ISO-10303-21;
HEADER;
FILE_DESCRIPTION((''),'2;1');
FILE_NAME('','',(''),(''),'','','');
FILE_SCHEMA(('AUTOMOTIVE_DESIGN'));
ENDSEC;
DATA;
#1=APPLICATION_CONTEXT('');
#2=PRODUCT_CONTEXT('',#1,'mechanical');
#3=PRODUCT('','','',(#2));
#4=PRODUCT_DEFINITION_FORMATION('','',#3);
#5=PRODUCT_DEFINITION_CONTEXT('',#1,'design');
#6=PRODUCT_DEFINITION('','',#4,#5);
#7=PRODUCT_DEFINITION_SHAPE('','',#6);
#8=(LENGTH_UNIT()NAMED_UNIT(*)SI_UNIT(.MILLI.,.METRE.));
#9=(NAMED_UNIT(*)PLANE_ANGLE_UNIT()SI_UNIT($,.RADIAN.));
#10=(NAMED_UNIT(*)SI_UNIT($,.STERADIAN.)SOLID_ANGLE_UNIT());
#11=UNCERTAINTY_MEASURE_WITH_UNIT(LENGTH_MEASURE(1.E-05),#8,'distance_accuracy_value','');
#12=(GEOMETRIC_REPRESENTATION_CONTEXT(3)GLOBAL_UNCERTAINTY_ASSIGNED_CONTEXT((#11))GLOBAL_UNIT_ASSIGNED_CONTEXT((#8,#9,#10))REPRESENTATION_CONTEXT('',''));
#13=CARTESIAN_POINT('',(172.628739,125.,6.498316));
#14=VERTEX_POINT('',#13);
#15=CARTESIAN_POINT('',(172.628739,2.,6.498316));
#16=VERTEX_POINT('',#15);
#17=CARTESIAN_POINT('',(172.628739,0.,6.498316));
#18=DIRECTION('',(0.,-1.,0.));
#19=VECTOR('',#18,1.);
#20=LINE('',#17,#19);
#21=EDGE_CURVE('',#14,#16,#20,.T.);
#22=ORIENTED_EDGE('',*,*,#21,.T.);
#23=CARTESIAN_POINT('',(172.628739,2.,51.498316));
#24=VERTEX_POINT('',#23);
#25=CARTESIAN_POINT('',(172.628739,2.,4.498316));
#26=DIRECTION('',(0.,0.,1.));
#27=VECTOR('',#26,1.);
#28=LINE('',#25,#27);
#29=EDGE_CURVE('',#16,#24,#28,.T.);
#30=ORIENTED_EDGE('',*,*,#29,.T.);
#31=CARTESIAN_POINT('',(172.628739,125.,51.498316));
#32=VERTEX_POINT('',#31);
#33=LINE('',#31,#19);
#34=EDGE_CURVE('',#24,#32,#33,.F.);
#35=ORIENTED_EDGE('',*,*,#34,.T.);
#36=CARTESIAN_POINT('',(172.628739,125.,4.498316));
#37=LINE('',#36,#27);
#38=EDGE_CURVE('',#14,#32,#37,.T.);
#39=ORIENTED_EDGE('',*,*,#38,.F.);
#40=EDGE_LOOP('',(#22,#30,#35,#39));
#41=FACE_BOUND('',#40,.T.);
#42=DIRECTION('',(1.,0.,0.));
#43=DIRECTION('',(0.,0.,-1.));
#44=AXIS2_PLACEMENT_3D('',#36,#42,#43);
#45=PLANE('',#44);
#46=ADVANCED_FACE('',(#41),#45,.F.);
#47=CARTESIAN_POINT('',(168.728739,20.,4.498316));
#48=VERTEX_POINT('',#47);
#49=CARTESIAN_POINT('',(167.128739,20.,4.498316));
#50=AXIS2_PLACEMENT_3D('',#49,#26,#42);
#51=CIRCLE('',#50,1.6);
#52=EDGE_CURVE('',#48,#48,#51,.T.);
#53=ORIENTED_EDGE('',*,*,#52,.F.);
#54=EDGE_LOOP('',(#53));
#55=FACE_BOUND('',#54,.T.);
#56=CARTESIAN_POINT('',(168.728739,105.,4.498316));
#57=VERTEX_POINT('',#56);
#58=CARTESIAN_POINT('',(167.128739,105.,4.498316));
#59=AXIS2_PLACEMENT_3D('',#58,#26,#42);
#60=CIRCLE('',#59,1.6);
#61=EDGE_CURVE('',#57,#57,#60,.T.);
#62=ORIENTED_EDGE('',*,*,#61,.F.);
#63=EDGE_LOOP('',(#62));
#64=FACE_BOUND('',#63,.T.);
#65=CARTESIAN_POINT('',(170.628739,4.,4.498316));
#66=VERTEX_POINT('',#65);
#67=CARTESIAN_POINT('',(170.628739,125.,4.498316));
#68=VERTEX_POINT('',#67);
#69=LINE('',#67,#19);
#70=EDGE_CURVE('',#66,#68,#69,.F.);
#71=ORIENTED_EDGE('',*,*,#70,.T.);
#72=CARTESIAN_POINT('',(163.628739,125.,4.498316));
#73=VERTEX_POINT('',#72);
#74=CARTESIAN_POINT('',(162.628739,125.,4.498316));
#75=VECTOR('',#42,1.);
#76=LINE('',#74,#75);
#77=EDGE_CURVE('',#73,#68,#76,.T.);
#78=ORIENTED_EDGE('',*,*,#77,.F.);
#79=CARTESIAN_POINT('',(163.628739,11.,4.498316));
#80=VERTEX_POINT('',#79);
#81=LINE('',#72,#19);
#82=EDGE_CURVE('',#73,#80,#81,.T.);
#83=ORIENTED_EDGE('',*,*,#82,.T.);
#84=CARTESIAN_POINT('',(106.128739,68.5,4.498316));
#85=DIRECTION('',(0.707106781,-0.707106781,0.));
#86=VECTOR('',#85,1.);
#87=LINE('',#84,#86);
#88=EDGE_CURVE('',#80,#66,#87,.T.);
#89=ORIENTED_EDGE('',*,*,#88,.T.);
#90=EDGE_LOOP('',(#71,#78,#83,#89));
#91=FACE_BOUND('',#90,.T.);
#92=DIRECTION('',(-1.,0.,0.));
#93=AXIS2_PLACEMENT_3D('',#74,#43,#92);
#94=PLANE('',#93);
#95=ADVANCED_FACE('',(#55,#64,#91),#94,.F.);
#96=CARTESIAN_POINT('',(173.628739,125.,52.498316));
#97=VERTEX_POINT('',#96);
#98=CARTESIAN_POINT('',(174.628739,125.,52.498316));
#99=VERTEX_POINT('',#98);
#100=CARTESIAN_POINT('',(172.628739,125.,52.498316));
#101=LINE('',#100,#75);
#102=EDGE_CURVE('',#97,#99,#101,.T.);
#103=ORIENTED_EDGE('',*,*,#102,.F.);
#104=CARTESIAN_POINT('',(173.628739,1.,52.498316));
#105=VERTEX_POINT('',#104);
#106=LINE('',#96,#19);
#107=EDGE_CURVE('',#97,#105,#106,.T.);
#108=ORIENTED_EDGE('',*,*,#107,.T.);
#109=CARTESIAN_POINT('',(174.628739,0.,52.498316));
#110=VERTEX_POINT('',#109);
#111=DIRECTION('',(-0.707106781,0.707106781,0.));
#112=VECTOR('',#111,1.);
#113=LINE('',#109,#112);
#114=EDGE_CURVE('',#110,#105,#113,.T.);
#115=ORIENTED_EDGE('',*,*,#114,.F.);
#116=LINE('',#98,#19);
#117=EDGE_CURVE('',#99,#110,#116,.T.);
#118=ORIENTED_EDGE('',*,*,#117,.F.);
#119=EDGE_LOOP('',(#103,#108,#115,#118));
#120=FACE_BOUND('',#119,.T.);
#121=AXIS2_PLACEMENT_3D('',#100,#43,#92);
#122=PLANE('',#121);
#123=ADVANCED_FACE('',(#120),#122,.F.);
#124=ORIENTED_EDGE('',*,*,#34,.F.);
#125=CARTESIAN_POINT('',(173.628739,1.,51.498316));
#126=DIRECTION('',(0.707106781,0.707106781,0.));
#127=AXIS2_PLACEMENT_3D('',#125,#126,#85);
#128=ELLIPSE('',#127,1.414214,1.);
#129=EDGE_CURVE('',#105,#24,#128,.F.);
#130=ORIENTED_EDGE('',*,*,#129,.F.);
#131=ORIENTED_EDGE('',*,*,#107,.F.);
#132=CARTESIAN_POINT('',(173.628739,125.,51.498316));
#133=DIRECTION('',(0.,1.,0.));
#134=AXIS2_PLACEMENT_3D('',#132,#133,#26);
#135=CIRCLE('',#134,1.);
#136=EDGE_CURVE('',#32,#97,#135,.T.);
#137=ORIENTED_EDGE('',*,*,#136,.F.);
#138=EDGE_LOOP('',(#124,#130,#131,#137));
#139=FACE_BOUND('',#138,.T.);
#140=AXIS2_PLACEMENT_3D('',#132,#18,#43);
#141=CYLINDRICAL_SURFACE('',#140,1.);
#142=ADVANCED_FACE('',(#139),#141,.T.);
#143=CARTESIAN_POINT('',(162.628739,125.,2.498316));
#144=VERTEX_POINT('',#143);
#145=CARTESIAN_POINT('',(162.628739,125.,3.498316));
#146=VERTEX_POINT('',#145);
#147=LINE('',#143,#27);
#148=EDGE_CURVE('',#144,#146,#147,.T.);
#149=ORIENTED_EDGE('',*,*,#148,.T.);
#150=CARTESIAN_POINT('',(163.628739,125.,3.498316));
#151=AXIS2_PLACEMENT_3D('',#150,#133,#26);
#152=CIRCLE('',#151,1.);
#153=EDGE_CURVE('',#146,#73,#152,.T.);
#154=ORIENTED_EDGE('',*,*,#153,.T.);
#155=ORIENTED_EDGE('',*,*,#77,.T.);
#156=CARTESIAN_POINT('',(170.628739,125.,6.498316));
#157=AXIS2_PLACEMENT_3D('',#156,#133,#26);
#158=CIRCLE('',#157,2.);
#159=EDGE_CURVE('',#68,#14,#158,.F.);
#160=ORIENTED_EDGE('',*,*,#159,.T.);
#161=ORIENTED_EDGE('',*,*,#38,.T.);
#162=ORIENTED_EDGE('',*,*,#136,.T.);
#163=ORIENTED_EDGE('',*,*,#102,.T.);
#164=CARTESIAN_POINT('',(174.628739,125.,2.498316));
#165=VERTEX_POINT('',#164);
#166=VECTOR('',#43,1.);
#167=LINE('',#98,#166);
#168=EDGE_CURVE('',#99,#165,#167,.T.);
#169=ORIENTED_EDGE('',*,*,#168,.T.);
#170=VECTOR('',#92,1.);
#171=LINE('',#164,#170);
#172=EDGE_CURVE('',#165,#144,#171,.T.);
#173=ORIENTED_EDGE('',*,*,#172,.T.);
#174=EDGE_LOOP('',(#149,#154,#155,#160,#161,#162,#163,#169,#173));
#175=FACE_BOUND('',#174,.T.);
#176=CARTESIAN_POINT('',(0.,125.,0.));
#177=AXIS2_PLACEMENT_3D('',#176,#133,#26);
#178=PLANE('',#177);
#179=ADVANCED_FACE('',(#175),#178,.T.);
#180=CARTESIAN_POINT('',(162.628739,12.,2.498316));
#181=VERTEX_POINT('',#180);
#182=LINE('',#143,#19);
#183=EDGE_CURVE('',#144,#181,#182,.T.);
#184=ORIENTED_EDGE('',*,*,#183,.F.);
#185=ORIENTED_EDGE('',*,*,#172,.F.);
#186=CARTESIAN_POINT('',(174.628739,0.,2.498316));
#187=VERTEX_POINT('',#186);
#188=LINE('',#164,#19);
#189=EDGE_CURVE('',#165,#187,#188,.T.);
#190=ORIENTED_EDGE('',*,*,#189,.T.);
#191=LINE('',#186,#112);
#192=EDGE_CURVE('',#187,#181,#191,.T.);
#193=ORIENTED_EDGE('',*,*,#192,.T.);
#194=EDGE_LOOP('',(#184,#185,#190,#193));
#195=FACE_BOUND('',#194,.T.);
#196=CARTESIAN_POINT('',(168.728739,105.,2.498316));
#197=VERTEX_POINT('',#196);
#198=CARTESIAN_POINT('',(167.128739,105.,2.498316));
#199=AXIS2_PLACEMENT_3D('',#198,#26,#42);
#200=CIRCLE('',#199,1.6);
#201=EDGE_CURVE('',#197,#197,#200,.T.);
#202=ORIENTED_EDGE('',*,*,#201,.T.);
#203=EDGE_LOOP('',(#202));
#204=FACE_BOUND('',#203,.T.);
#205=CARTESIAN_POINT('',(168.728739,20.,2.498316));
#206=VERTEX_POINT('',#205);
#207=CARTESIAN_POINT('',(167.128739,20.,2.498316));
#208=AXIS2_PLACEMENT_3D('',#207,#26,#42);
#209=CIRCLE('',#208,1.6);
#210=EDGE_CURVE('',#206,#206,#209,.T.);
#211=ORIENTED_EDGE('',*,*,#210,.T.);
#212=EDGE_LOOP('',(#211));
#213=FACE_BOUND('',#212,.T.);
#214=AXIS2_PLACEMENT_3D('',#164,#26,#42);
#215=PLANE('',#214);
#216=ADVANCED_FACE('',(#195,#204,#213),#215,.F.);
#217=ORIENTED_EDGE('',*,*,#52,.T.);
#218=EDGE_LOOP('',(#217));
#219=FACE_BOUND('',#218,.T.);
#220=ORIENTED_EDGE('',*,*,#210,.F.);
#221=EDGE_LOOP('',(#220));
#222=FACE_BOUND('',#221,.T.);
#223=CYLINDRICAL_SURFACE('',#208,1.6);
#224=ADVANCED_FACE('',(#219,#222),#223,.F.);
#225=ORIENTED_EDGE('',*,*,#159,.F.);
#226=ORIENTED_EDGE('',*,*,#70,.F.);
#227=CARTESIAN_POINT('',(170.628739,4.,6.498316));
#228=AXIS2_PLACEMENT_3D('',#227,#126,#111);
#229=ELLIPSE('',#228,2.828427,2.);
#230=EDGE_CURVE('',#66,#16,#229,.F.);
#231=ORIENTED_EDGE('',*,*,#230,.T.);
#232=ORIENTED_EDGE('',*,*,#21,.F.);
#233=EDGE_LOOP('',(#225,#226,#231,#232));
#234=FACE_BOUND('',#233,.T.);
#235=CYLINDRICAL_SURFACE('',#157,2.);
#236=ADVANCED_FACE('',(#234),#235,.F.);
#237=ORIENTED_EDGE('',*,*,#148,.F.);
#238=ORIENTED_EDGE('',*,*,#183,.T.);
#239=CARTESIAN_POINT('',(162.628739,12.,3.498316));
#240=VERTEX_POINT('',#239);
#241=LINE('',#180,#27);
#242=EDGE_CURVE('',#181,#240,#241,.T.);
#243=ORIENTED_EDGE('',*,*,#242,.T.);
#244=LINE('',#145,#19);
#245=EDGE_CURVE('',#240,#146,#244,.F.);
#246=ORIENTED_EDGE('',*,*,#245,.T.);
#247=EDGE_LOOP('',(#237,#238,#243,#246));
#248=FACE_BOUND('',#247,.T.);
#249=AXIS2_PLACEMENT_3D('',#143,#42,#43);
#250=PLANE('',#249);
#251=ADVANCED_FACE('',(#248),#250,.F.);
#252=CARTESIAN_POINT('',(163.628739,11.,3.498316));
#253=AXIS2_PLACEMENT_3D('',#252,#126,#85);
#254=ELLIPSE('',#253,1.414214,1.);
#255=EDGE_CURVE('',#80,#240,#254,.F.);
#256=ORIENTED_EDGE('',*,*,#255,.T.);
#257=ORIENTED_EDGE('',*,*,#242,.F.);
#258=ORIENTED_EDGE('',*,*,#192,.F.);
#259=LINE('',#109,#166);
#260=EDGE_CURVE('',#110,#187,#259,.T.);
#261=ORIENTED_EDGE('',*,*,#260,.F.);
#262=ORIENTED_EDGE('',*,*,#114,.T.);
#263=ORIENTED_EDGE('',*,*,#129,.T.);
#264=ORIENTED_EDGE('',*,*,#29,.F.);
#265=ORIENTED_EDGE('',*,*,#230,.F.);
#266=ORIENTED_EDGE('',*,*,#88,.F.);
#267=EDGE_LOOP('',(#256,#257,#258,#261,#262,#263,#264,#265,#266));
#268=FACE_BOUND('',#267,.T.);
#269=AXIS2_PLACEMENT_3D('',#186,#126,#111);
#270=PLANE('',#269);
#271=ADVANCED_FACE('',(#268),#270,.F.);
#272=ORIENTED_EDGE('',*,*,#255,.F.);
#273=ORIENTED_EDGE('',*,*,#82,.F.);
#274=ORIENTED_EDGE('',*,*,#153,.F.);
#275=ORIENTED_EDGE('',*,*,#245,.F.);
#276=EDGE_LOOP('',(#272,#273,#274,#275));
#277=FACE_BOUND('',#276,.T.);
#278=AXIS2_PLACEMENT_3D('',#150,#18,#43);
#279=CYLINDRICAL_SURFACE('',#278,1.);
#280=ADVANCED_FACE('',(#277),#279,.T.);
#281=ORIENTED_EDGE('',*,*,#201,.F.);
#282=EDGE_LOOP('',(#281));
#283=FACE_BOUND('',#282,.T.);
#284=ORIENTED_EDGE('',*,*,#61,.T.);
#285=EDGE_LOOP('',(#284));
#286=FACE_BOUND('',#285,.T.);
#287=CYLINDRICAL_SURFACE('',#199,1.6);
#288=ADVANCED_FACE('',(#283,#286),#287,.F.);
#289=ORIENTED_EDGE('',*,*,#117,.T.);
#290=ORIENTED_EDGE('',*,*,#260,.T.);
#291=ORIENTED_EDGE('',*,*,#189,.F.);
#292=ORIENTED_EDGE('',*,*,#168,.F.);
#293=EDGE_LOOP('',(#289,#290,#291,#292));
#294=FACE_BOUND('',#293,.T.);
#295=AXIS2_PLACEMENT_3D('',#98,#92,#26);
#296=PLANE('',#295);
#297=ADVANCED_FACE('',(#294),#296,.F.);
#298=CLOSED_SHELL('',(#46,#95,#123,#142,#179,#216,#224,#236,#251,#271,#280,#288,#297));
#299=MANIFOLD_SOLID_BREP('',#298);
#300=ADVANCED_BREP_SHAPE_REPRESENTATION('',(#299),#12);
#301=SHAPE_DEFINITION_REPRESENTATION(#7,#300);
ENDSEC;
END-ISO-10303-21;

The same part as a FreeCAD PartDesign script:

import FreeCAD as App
import Part
import Sketcher
from FreeCAD import Vector


def edges_at(feature, points):
    """Names of the edges that pass closest to the given points."""
    edges = feature.Shape.Edges
    near = lambda p: min(range(len(edges)), key=lambda i: edges[i].distToShape(Part.Vertex(*p))[0])
    return sorted({f"Edge{near(p) + 1}" for p in points})

doc = App.newDocument("Part")
body = doc.addObject("PartDesign::Body", "Body")

# Sketch on XZ plane
sketch1 = body.newObject("Sketcher::SketchObject", "Sketch")
sketch1.AttachmentSupport = (doc.getObject("XZ_Plane"), [""])
sketch1.MapMode = "FlatFace"
sketch1.addGeometry([
    Part.LineSegment(Vector(174.6, 52.5, 0), Vector(174.6, 2.5, 0)),  # 0
    Part.LineSegment(Vector(174.6, 2.5, 0), Vector(162.6, 2.5, 0)),  # 1
    Part.LineSegment(Vector(162.6, 2.5, 0), Vector(162.6, 4.5, 0)),  # 2
    Part.LineSegment(Vector(162.6, 4.5, 0), Vector(172.6, 4.5, 0)),  # 3
    Part.LineSegment(Vector(172.6, 4.5, 0), Vector(172.6, 52.5, 0)),  # 4
    Part.LineSegment(Vector(172.6, 52.5, 0), Vector(174.6, 52.5, 0)),  # 5
], False)
sketch1.addConstraint([
    Sketcher.Constraint("Coincident", 0, 2, 1, 1),
    Sketcher.Constraint("Coincident", 1, 2, 2, 1),
    Sketcher.Constraint("Coincident", 2, 2, 3, 1),
    Sketcher.Constraint("Coincident", 3, 2, 4, 1),
    Sketcher.Constraint("Coincident", 4, 2, 5, 1),
    Sketcher.Constraint("Coincident", 5, 2, 0, 1),
    Sketcher.Constraint("Vertical", 0),
    Sketcher.Constraint("Horizontal", 1),
    Sketcher.Constraint("Vertical", 2),
    Sketcher.Constraint("Horizontal", 3),
    Sketcher.Constraint("Vertical", 4),
    Sketcher.Constraint("Horizontal", 5),
    Sketcher.Constraint("Equal", 5, 2),
    Sketcher.Constraint("DistanceX", 1, 2, 1, 1, 12.0),
    Sketcher.Constraint("DistanceX", 3, 1, 3, 2, 10.0),
    Sketcher.Constraint("DistanceY", 0, 2, 0, 1, 50.0),
    Sketcher.Constraint("DistanceX", -1, 1, 0, 2, 174.628739),
    Sketcher.Constraint("DistanceY", -1, 1, 0, 2, 2.498316),
])
pad1 = body.newObject("PartDesign::Pad", "Pad")
pad1.Profile = sketch1
pad1.Length = 125
pad1.Reversed = True
doc.recompute()

fillet = body.newObject("PartDesign::Fillet", "Fillet")
fillet.Base = (pad1, edges_at(pad1, [(172.629, 62.5, 52.498), (162.629, 62.5, 4.498)]))
fillet.Radius = 1
doc.recompute()

fillet2 = body.newObject("PartDesign::Fillet", "Fillet001")
fillet2.Base = (fillet, edges_at(fillet, [(172.629, 62.5, 4.498)]))
fillet2.Radius = 2

# Sketch on XY plane
sketch2 = body.newObject("Sketcher::SketchObject", "Sketch001")
sketch2.AttachmentSupport = (doc.getObject("XY_Plane"), [""])
sketch2.MapMode = "FlatFace"
sketch2.AttachmentOffset = App.Placement(Vector(0, 0, 4.498316), App.Rotation())
sketch2.addGeometry([
    Part.Circle(Vector(167.1, 20, 0), Vector(0, 0, 1), 1.6),
    Part.Circle(Vector(167.1, 105, 0), Vector(0, 0, 1), 1.6),
], False)
sketch2.addConstraint([
    Sketcher.Constraint("Equal", 0, 1),
    Sketcher.Constraint("Vertical", 0, 3, 1, 3),
    Sketcher.Constraint("Diameter", 0, 3.2),
    Sketcher.Constraint("DistanceY", -1, 1, 0, 3, 20.0),
    Sketcher.Constraint("DistanceY", -1, 1, 1, 3, 105.0),
    Sketcher.Constraint("DistanceX", -1, 1, 0, 3, 167.128739),
])
pocket1 = body.newObject("PartDesign::Pocket", "Pocket")
pocket1.Profile = sketch2
pocket1.Type = "ThroughAll"

# Sketch on XY plane
sketch3 = body.newObject("Sketcher::SketchObject", "Sketch002")
sketch3.AttachmentSupport = (doc.getObject("XY_Plane"), [""])
sketch3.MapMode = "FlatFace"
sketch3.AttachmentOffset = App.Placement(Vector(0, 0, 4.498316), App.Rotation())
sketch3.addGeometry([
    Part.LineSegment(Vector(175, 0, 0), Vector(163, 12, 0)),
    Part.LineSegment(Vector(163, 12, 0), Vector(163, 0, 0)),
    Part.LineSegment(Vector(163, 0, 0), Vector(175, 0, 0)),
], False)
sketch3.addConstraint([
    Sketcher.Constraint("Coincident", 0, 2, 1, 1),
    Sketcher.Constraint("Coincident", 1, 2, 2, 1),
    Sketcher.Constraint("Coincident", 2, 2, 0, 1),
    Sketcher.Constraint("Vertical", 1),
    Sketcher.Constraint("Horizontal", 2),
    Sketcher.Constraint("PointOnObject", 1, 2, -1),
    Sketcher.Constraint("Equal", 2, 1),
    Sketcher.Constraint("DistanceX", 2, 1, 2, 2, 12.0),
    Sketcher.Constraint("DistanceX", -1, 1, 0, 2, 162.628739),
])
pocket2 = body.newObject("PartDesign::Pocket", "Pocket001")
pocket2.Profile = sketch3
pocket2.Type = "ThroughAll"
pocket2.Midplane = True

doc.recompute()
